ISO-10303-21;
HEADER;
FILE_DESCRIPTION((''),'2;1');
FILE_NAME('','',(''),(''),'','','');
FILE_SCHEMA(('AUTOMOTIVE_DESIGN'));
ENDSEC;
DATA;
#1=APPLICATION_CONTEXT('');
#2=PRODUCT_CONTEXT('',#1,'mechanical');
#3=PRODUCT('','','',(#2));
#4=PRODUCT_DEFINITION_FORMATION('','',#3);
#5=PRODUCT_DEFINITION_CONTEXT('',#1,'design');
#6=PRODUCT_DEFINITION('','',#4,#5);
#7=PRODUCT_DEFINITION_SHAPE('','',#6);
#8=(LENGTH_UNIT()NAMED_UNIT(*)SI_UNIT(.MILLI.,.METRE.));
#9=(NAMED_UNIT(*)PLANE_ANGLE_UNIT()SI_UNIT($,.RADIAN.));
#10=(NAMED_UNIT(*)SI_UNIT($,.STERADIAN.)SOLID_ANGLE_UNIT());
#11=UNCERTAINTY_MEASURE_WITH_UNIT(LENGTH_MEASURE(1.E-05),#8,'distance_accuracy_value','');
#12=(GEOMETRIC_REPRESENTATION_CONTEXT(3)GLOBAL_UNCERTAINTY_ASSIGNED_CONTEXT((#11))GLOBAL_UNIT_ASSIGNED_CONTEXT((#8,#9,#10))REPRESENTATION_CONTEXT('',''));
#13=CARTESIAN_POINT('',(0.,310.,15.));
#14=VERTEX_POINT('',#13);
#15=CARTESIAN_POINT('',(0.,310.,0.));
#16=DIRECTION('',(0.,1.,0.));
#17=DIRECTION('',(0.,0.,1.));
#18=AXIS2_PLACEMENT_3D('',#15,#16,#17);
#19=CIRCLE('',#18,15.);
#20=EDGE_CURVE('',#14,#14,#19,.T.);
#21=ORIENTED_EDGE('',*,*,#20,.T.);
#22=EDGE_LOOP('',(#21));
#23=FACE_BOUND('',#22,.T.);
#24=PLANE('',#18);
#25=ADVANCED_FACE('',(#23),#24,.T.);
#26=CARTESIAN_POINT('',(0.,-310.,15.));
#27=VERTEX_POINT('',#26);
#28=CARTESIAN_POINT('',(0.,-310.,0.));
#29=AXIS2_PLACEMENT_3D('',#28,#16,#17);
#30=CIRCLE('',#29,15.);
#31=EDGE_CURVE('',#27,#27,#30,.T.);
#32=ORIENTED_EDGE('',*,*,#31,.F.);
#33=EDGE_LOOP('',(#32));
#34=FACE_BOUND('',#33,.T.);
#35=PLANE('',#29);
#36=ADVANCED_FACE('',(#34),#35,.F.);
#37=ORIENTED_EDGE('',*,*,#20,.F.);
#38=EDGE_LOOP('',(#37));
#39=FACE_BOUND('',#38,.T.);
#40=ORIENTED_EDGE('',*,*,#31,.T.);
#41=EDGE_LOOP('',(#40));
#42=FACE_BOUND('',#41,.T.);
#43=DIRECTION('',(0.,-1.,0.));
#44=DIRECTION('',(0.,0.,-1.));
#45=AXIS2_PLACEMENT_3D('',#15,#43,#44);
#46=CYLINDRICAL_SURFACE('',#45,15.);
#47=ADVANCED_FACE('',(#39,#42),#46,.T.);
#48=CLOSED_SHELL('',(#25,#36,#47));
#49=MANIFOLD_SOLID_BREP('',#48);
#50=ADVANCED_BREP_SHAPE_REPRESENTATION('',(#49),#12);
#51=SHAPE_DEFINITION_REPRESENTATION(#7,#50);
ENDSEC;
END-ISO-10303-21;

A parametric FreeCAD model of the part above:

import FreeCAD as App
import Part
import Sketcher

V = App.Vector

doc = App.newDocument("Part")
body = doc.addObject("PartDesign::Body", "Body")

sketch1 = doc.addObject("Sketcher::SketchObject", "Sketch")
body.addObject(sketch1)
sketch1.AttachmentSupport = (doc.XZ_Plane, [""])
sketch1.MapMode = "FlatFace"
sketch1.addGeometry(Part.Circle(V(0, 0, 0), V(0, 0, 1), 15), False)
sketch1.addConstraint(Sketcher.Constraint("Coincident", 0, 3, -1, 1))
sketch1.addConstraint(Sketcher.Constraint("Diameter", 0, 30.0))
pad1 = doc.addObject("PartDesign::Pad", "Pad")
body.addObject(pad1)
pad1.Profile = sketch1
pad1.Length = 620
pad1.Midplane = True

doc.recompute()
